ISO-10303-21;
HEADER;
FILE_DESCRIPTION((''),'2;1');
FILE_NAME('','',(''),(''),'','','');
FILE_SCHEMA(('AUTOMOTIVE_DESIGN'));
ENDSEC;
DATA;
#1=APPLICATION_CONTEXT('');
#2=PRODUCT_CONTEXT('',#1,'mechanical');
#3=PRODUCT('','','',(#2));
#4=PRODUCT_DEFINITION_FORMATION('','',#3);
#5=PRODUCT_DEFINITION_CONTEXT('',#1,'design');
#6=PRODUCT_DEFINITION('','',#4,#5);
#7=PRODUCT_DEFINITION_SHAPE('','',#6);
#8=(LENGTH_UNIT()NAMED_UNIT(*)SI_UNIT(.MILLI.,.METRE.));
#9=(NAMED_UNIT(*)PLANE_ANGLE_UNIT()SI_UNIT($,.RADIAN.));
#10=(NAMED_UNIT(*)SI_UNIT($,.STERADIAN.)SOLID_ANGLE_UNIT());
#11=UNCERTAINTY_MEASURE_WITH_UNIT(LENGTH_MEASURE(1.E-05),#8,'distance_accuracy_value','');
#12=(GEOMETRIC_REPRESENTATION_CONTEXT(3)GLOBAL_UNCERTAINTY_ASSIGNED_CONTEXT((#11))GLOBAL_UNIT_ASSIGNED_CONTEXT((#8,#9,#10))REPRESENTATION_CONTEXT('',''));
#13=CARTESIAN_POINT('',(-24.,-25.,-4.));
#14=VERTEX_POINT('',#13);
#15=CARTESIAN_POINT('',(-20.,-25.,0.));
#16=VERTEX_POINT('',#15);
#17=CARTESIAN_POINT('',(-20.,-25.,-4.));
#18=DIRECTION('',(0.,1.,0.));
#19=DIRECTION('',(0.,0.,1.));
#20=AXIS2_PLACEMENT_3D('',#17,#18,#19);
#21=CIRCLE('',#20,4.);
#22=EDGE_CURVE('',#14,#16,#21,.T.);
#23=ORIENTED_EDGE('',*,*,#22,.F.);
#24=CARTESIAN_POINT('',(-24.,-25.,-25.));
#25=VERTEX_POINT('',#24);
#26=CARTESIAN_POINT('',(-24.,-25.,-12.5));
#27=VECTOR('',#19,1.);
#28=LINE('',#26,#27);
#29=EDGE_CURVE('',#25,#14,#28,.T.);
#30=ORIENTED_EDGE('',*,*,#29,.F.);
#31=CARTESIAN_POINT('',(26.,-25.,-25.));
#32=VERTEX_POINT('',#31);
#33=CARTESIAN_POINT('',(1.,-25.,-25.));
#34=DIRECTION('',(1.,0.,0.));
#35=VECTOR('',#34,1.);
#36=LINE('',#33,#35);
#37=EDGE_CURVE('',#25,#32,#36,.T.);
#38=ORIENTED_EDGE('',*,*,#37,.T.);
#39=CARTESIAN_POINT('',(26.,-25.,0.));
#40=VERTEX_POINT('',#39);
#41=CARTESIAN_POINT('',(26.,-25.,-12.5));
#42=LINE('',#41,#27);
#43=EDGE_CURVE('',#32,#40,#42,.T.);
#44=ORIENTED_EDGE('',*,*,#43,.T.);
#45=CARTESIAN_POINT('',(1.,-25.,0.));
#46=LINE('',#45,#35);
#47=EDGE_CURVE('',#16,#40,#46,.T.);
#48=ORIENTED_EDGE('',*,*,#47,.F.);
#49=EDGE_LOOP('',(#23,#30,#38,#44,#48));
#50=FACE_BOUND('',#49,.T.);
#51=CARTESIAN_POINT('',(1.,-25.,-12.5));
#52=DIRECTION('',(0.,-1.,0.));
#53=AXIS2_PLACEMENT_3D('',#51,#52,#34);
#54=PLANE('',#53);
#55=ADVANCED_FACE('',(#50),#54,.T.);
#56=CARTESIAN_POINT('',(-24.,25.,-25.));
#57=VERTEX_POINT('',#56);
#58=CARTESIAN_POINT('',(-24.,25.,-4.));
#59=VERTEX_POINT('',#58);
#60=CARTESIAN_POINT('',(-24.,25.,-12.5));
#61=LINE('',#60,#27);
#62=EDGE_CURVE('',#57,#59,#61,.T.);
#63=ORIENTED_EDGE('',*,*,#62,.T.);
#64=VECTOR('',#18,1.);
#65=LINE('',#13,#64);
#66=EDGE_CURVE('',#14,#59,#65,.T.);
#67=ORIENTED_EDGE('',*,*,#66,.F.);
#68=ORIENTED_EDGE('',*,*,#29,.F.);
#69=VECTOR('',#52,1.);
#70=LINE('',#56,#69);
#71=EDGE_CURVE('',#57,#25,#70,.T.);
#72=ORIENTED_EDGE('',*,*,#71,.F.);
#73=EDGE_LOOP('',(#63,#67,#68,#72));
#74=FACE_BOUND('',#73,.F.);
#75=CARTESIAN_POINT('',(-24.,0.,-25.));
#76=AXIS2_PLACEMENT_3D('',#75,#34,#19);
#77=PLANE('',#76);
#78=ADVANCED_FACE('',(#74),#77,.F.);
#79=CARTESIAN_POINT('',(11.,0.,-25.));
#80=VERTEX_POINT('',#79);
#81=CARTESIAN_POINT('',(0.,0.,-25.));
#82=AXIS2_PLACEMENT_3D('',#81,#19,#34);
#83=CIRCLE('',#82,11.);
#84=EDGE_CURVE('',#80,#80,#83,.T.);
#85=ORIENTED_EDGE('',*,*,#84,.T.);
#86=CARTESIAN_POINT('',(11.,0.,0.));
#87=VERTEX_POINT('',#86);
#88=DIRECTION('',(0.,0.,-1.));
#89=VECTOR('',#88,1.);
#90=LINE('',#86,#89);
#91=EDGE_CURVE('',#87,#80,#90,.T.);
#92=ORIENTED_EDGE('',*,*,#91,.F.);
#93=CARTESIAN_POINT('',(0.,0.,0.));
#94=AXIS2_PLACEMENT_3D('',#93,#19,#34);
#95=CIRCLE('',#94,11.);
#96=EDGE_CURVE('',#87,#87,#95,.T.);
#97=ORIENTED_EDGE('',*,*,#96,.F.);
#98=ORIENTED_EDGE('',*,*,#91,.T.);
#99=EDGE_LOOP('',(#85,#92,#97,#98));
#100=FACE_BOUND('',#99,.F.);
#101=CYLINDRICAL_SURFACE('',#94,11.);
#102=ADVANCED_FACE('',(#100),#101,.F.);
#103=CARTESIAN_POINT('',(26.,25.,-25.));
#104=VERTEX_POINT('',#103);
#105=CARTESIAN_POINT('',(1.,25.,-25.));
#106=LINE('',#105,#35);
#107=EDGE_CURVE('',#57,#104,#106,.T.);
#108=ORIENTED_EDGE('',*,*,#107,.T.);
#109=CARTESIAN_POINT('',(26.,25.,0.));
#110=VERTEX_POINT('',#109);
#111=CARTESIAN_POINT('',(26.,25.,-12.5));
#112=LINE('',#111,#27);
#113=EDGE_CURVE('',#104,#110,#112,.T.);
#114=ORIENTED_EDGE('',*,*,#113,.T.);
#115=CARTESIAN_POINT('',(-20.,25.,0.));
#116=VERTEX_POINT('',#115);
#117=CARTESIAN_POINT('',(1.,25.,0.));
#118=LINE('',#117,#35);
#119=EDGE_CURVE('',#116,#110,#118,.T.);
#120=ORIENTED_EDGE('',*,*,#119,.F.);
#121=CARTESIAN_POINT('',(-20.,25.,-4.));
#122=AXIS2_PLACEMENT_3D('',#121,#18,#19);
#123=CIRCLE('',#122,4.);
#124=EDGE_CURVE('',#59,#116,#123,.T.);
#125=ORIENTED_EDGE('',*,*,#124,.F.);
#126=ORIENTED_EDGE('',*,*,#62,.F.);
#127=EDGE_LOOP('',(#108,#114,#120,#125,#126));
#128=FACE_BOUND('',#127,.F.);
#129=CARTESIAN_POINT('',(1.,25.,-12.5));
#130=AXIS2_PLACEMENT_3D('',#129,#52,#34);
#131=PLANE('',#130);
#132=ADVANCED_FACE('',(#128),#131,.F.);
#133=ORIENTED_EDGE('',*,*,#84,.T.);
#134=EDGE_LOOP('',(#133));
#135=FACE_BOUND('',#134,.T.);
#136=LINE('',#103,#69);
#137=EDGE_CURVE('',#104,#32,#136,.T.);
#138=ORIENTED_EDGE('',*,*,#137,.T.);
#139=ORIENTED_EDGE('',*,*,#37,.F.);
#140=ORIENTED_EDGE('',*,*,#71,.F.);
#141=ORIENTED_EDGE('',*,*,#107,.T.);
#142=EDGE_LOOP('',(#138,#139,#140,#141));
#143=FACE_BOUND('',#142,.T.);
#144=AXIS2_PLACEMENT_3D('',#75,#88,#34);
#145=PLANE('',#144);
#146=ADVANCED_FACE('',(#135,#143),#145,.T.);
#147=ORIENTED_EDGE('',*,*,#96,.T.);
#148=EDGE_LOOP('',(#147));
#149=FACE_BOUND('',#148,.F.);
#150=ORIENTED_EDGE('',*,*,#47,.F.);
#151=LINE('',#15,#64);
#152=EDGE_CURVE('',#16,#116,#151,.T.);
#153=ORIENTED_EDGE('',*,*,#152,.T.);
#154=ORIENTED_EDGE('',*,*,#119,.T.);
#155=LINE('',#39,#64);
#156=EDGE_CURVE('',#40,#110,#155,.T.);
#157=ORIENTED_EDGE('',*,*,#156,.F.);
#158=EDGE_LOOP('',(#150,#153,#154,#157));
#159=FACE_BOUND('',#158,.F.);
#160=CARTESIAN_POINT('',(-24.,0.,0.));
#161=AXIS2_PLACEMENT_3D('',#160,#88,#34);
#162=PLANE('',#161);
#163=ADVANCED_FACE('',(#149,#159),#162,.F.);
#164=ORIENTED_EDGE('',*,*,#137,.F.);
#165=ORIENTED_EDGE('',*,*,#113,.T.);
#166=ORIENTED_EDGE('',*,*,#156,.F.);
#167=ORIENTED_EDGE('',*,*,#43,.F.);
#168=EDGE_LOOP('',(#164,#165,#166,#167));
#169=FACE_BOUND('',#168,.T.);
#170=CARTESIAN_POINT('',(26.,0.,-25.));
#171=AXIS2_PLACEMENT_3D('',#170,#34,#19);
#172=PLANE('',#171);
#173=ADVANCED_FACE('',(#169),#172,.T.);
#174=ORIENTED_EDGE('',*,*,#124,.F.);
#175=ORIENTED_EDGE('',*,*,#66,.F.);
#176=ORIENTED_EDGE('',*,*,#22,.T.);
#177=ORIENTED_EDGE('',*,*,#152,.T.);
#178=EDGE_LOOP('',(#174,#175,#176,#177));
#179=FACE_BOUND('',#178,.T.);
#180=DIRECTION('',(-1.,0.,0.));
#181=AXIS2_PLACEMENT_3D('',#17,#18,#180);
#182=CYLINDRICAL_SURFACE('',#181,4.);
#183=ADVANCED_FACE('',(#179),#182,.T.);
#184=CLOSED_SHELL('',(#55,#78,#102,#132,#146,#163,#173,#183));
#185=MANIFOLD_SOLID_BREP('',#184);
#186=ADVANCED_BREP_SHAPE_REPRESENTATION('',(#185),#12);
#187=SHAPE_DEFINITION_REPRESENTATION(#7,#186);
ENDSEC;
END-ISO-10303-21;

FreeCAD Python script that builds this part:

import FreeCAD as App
import Part
import Sketcher
from FreeCAD import Vector
Q = App.Units.Quantity


def edges_at(feature, points):
    """Names of the edges that pass closest to the given points."""
    edges = feature.Shape.Edges
    near = lambda p: min(range(len(edges)), key=lambda i: edges[i].distToShape(Part.Vertex(*p))[0])
    return sorted({f"Edge{near(p) + 1}" for p in points})

doc = App.newDocument("Part")
body = doc.addObject("PartDesign::Body", "Body")

sketch1 = body.newObject("Sketcher::SketchObject", "Sketch")
sketch1.AttachmentSupport = (doc.getObject("XZ_Plane"), [""])
sketch1.MapMode = "FlatFace"
sketch1.addGeometry([
    Part.LineSegment(Vector(-24, 0, 0), Vector(-24, -25, 0)),
    Part.LineSegment(Vector(-24, -25, 0), Vector(26, -25, 0)),
    Part.LineSegment(Vector(26, -25, 0), Vector(26, 0, 0)),
    Part.LineSegment(Vector(26, 0, 0), Vector(-24, 0, 0)),
], False)
sketch1.addConstraint([
    Sketcher.Constraint("Coincident", 0, 2, 1, 1),
    Sketcher.Constraint("Coincident", 1, 2, 2, 1),
    Sketcher.Constraint("Coincident", 2, 2, 3, 1),
    Sketcher.Constraint("Coincident", 3, 2, 0, 1),
    Sketcher.Constraint("Vertical", 0),
    Sketcher.Constraint("Horizontal", 1),
    Sketcher.Constraint("Vertical", 2),
    Sketcher.Constraint("Horizontal", 3),
    Sketcher.Constraint("PointOnObject", 2, 2, -1),
    Sketcher.Constraint("DistanceX", 1, 1, 1, 2, Q("50 mm")),
    Sketcher.Constraint("DistanceY", 0, 2, 0, 1, Q("25 mm")),
    Sketcher.Constraint("DistanceX", 0, 2, -1, 1, Q("24 mm")),
])
pad1 = body.newObject("PartDesign::Pad", "Pad")
pad1.Profile = sketch1
pad1.Length = 50
pad1.Midplane = True
doc.recompute()

fillet = body.newObject("PartDesign::Fillet", "Fillet")
fillet.Base = (pad1, edges_at(pad1, [(-24, 0, 0)]))
fillet.Radius = 4

sketch2 = body.newObject("Sketcher::SketchObject", "Sketch001")
sketch2.AttachmentSupport = (doc.getObject("XY_Plane"), [""])
sketch2.MapMode = "FlatFace"
sketch2.addGeometry(Part.Circle(Vector(0, 0, 0), Vector(0, 0, 1), 11), False)
sketch2.addConstraint([
    Sketcher.Constraint("Coincident", 0, 3, -1, 1),
    Sketcher.Constraint("Diameter", 0, Q("22 mm")),
])
pocket1 = body.newObject("PartDesign::Pocket", "Pocket")
pocket1.Profile = sketch2
pocket1.Type = "ThroughAll"

doc.recompute()
